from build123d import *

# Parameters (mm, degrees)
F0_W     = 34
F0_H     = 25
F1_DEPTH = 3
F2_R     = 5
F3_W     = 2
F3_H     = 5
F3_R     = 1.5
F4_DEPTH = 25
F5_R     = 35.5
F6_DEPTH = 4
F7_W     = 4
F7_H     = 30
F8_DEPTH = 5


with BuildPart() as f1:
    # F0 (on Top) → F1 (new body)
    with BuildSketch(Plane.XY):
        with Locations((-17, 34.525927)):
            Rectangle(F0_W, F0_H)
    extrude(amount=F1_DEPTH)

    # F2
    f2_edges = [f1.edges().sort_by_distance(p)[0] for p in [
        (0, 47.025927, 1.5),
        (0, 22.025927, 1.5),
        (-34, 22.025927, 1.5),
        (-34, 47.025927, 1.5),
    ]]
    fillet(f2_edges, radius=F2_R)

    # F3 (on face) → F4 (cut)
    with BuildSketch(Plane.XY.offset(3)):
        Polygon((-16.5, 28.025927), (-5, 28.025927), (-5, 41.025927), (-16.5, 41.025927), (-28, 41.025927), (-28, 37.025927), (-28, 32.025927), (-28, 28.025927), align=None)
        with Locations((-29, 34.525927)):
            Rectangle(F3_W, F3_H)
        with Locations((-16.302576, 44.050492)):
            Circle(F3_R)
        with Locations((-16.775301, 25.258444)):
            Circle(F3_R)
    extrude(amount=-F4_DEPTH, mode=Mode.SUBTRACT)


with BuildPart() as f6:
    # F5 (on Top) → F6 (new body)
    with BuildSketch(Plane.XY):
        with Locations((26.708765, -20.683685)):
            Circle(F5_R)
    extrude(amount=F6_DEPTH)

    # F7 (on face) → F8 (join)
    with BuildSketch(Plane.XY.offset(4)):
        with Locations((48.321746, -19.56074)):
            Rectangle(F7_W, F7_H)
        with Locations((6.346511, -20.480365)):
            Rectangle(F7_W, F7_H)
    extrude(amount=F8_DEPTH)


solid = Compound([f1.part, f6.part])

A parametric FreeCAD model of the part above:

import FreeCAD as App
import Part
import Sketcher

V = App.Vector


def edges_at(feature, points):
    """Names of the edges that pass closest to the given points."""
    edges = feature.Shape.Edges
    near = lambda p: min(range(len(edges)), key=lambda i: edges[i].distToShape(Part.Vertex(*p))[0])
    return sorted({f"Edge{near(p) + 1}" for p in points})

doc = App.newDocument("Part")
body = doc.addObject("PartDesign::Body", "Body")

sketch1 = body.newObject("Sketcher::SketchObject", "Sketch")
sketch1.AttachmentSupport = (doc.getObject("XY_Plane"), [""])
sketch1.MapMode = "FlatFace"
sketch1.addGeometry(Part.LineSegment(V(-34, 47, 0), V(-34, 22, 0)), False)
sketch1.addGeometry(Part.LineSegment(V(-34, 22, 0), V(0, 22, 0)), False)
sketch1.addGeometry(Part.LineSegment(V(0, 22, 0), V(0, 47, 0)), False)
sketch1.addGeometry(Part.LineSegment(V(0, 47, 0), V(-34, 47, 0)), False)
sketch1.addConstraint(Sketcher.Constraint("Coincident", 0, 2, 1, 1))
sketch1.addConstraint(Sketcher.Constraint("Coincident", 1, 2, 2, 1))
sketch1.addConstraint(Sketcher.Constraint("Coincident", 2, 2, 3, 1))
sketch1.addConstraint(Sketcher.Constraint("Coincident", 3, 2, 0, 1))
sketch1.addConstraint(Sketcher.Constraint("Vertical", 0))
sketch1.addConstraint(Sketcher.Constraint("Horizontal", 1))
sketch1.addConstraint(Sketcher.Constraint("Vertical", 2))
sketch1.addConstraint(Sketcher.Constraint("Horizontal", 3))
sketch1.addConstraint(Sketcher.Constraint("PointOnObject", 1, 2, -2))
sketch1.addConstraint(Sketcher.Constraint("DistanceX", 1, 1, 1, 2, 34.0))
sketch1.addConstraint(Sketcher.Constraint("DistanceY", 0, 2, 0, 1, 25.0))
sketch1.addConstraint(Sketcher.Constraint("DistanceY", -1, 1, 0, 2, 22.025927))
pad1 = body.newObject("PartDesign::Pad", "Pad")
pad1.Profile = sketch1
pad1.Length = 3
doc.recompute()

fillet = body.newObject("PartDesign::Fillet", "Fillet")
fillet.Base = (pad1, edges_at(pad1, [
    (0, 47.026, 1.5),
    (0, 22.026, 1.5),
    (-34, 22.026, 1.5),
    (-34, 47.026, 1.5),
]))
fillet.Radius = 5

sketch2 = body.newObject("Sketcher::SketchObject", "Sketch001")
sketch2.AttachmentSupport = (doc.getObject("XY_Plane"), [""])
sketch2.MapMode = "FlatFace"
sketch2.AttachmentOffset = App.Placement(V(0, 0, 3), App.Rotation())
sketch2.addGeometry(Part.LineSegment(V(-5, 28, 0), V(-5, 41, 0)), False)
sketch2.addGeometry(Part.LineSegment(V(-5, 41, 0), V(-28, 41, 0)), False)
sketch2.addGeometry(Part.LineSegment(V(-28, 41, 0), V(-28, 37, 0)), False)
sketch2.addGeometry(Part.LineSegment(V(-28, 37, 0), V(-30, 37, 0)), False)
sketch2.addGeometry(Part.LineSegment(V(-30, 37, 0), V(-30, 32, 0)), False)
sketch2.addGeometry(Part.LineSegment(V(-30, 32, 0), V(-28, 32, 0)), False)
sketch2.addGeometry(Part.LineSegment(V(-28, 32, 0), V(-28, 28, 0)), False)
sketch2.addGeometry(Part.LineSegment(V(-28, 28, 0), V(-5, 28, 0)), False)
sketch2.addGeometry(Part.Circle(V(-16.3, 44.1, 0), V(0, 0, 1), 1.5), False)
sketch2.addGeometry(Part.Circle(V(-16.8, 25.3, 0), V(0, 0, 1), 1.5), False)
sketch2.addConstraint(Sketcher.Constraint("Coincident", 0, 2, 1, 1))
sketch2.addConstraint(Sketcher.Constraint("Coincident", 1, 2, 2, 1))
sketch2.addConstraint(Sketcher.Constraint("Coincident", 2, 2, 3, 1))
sketch2.addConstraint(Sketcher.Constraint("Coincident", 3, 2, 4, 1))
sketch2.addConstraint(Sketcher.Constraint("Coincident", 4, 2, 5, 1))
sketch2.addConstraint(Sketcher.Constraint("Coincident", 5, 2, 6, 1))
sketch2.addConstraint(Sketcher.Constraint("Coincident", 6, 2, 7, 1))
sketch2.addConstraint(Sketcher.Constraint("Coincident", 7, 2, 0, 1))
sketch2.addConstraint(Sketcher.Constraint("Vertical", 0))
sketch2.addConstraint(Sketcher.Constraint("Horizontal", 1))
sketch2.addConstraint(Sketcher.Constraint("Vertical", 2))
sketch2.addConstraint(Sketcher.Constraint("Horizontal", 3))
sketch2.addConstraint(Sketcher.Constraint("Vertical", 4))
sketch2.addConstraint(Sketcher.Constraint("Horizontal", 5))
sketch2.addConstraint(Sketcher.Constraint("Vertical", 6))
sketch2.addConstraint(Sketcher.Constraint("Horizontal", 7))
sketch2.addConstraint(Sketcher.Constraint("Equal", 8, 9))
sketch2.addConstraint(Sketcher.Constraint("Vertical", 2, 2, 5, 2))
sketch2.addConstraint(Sketcher.Constraint("Equal", 2, 6))
sketch2.addConstraint(Sketcher.Constraint("Diameter", 8, 3.0))
sketch2.addConstraint(Sketcher.Constraint("DistanceX", 1, 2, 1, 1, 23.0))
sketch2.addConstraint(Sketcher.Constraint("DistanceX", 3, 2, 3, 1, 2.0))
sketch2.addConstraint(Sketcher.Constraint("DistanceY", 0, 1, 0, 2, 13.0))
sketch2.addConstraint(Sketcher.Constraint("DistanceY", 2, 2, 2, 1, 4.0))
sketch2.addConstraint(Sketcher.Constraint("DistanceX", 0, 2, -1, 1, 5.0))
sketch2.addConstraint(Sketcher.Constraint("DistanceX", 9, 3, -1, 1, 16.775301))
sketch2.addConstraint(Sketcher.Constraint("DistanceY", -1, 1, 8, 3, 44.050492))
sketch2.addConstraint(Sketcher.Constraint("DistanceX", 8, 3, -1, 1, 16.302576))
sketch2.addConstraint(Sketcher.Constraint("DistanceY", -1, 1, 9, 3, 25.258444))
sketch2.addConstraint(Sketcher.Constraint("DistanceY", -1, 1, 0, 2, 41.025927))
pocket1 = body.newObject("PartDesign::Pocket", "Pocket")
pocket1.Profile = sketch2
pocket1.Length = 25
body2 = doc.addObject("PartDesign::Body", "Body001")

sketch3 = body2.newObject("Sketcher::SketchObject", "Sketch002")
sketch3.AttachmentSupport = (doc.getObject("XY_Plane001"), [""])
sketch3.MapMode = "FlatFace"
sketch3.addGeometry(Part.Circle(V(27, -21, 0), V(0, 0, 1), 36), False)
sketch3.addConstraint(Sketcher.Constraint("Diameter", 0, 71.0))
sketch3.addConstraint(Sketcher.Constraint("DistanceX", -1, 1, 0, 3, 26.708765))
sketch3.addConstraint(Sketcher.Constraint("DistanceY", 0, 3, -1, 1, 20.683685))
pad2 = body2.newObject("PartDesign::Pad", "Pad001")
pad2.Profile = sketch3
pad2.Length = 4

sketch4 = body2.newObject("Sketcher::SketchObject", "Sketch003")
sketch4.AttachmentSupport = (doc.getObject("XY_Plane001"), [""])
sketch4.MapMode = "FlatFace"
sketch4.AttachmentOffset = App.Placement(V(0, 0, 4), App.Rotation())
sketch4.addGeometry(Part.LineSegment(V(46.3, -4.6, 0), V(46.3, -34.6, 0)), False)
sketch4.addGeometry(Part.LineSegment(V(46.3, -34.6, 0), V(50.3, -34.6, 0)), False)
sketch4.addGeometry(Part.LineSegment(V(50.3, -34.6, 0), V(50.3, -4.6, 0)), False)
sketch4.addGeometry(Part.LineSegment(V(50.3, -4.6, 0), V(46.3, -4.6, 0)), False)
sketch4.addGeometry(Part.LineSegment(V(4.3, -5.5, 0), V(4.3, -35.5, 0)), False)
sketch4.addGeometry(Part.LineSegment(V(4.3, -35.5, 0), V(8.3, -35.5, 0)), False)
sketch4.addGeometry(Part.LineSegment(V(8.3, -35.5, 0), V(8.3, -5.5, 0)), False)
sketch4.addGeometry(Part.LineSegment(V(8.3, -5.5, 0), V(4.3, -5.5, 0)), False)
sketch4.addConstraint(Sketcher.Constraint("Coincident", 0, 2, 1, 1))
sketch4.addConstraint(Sketcher.Constraint("Coincident", 1, 2, 2, 1))
sketch4.addConstraint(Sketcher.Constraint("Coincident", 2, 2, 3, 1))
sketch4.addConstraint(Sketcher.Constraint("Coincident", 3, 2, 0, 1))
sketch4.addConstraint(Sketcher.Constraint("Coincident", 4, 2, 5, 1))
sketch4.addConstraint(Sketcher.Constraint("Coincident", 5, 2, 6, 1))
sketch4.addConstraint(Sketcher.Constraint("Coincident", 6, 2, 7, 1))
sketch4.addConstraint(Sketcher.Constraint("Coincident", 7, 2, 4, 1))
sketch4.addConstraint(Sketcher.Constraint("Vertical", 0))
sketch4.addConstraint(Sketcher.Constraint("Horizontal", 1))
sketch4.addConstraint(Sketcher.Constraint("Vertical", 2))
sketch4.addConstraint(Sketcher.Constraint("Horizontal", 3))
sketch4.addConstraint(Sketcher.Constraint("Vertical", 4))
sketch4.addConstraint(Sketcher.Constraint("Horizontal", 5))
sketch4.addConstraint(Sketcher.Constraint("Vertical", 6))
sketch4.addConstraint(Sketcher.Constraint("Horizontal", 7))
sketch4.addConstraint(Sketcher.Constraint("Equal", 3, 5))
sketch4.addConstraint(Sketcher.Constraint("Equal", 2, 4))
sketch4.addConstraint(Sketcher.Constraint("DistanceX", 1, 1, 1, 2, 4.0))
sketch4.addConstraint(Sketcher.Constraint("DistanceY", 0, 2, 0, 1, 30.0))
sketch4.addConstraint(Sketcher.Constraint("DistanceY", 0, 2, -1, 1, 34.56074))
sketch4.addConstraint(Sketcher.Constraint("DistanceX", -1, 1, 4, 2, 4.346511))
sketch4.addConstraint(Sketcher.Constraint("DistanceX", -1, 1, 0, 2, 46.321746))
sketch4.addConstraint(Sketcher.Constraint("DistanceY", 4, 2, -1, 1, 35.480365))
pad3 = body2.newObject("PartDesign::Pad", "Pad002")
pad3.Profile = sketch4
pad3.Length = 5

doc.recompute()
